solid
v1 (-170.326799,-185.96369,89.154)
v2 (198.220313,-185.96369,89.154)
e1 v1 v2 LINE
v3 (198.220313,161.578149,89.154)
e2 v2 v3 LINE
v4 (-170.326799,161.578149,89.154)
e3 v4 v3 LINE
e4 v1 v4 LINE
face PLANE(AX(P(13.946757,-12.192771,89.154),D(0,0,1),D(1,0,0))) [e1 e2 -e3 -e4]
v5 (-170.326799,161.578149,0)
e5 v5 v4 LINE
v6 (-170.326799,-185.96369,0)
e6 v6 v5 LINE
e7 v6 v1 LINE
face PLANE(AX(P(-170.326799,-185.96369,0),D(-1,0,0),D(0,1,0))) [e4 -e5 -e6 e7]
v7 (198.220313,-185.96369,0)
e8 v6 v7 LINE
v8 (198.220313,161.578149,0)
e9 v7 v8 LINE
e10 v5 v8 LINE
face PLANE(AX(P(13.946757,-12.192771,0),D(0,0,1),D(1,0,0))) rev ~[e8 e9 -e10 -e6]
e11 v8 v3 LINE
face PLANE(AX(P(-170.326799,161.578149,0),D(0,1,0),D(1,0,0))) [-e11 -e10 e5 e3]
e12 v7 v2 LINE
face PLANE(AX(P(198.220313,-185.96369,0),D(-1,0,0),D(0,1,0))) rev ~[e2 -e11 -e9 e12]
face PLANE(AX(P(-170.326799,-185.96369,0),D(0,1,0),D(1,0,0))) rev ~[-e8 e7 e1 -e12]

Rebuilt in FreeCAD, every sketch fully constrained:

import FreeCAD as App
import Part
import Sketcher
from FreeCAD import Vector
Q = App.Units.Quantity

doc = App.newDocument("Part")
body = doc.addObject("PartDesign::Body", "Body")

sketch1 = body.newObject("Sketcher::SketchObject", "Sketch")
sketch1.Placement = App.Placement(Vector(-23.828264, -62.397081, 0), App.Rotation(Vector(-0.934198808, 0.356752837, 0), Vector(0, 0, 1), Vector(0.356752837, 0.934198808, 0), "ZXY"))
sketch1.addGeometry([
    Part.LineSegment(Vector(-34, 40, 0), Vector(-34, 0, 0)),
    Part.LineSegment(Vector(-34, 0, 0), Vector(0, 0, 0)),
    Part.LineSegment(Vector(0, 0, 0), Vector(0, 40, 0)),
    Part.LineSegment(Vector(0, 40, 0), Vector(-34, 40, 0)),
], False)
sketch1.addConstraint([
    Sketcher.Constraint("Coincident", 0, 2, 1, 1),
    Sketcher.Constraint("Coincident", 1, 2, 2, 1),
    Sketcher.Constraint("Coincident", 2, 2, 3, 1),
    Sketcher.Constraint("Coincident", 3, 2, 0, 1),
    Sketcher.Constraint("Vertical", 0),
    Sketcher.Constraint("Horizontal", 1),
    Sketcher.Constraint("Vertical", 2),
    Sketcher.Constraint("Horizontal", 3),
    Sketcher.Constraint("Coincident", 1, 2, -1, 1),
    Sketcher.Constraint("DistanceY", 0, 2, 0, 1, Q("1.5735999 in")),
    Sketcher.Constraint("DistanceX", 1, 1, 1, 2, Q("34.492411 mm")),
])

sketch2 = body.newObject("Sketcher::SketchObject", "Sketch001")
sketch2.AttachmentSupport = (doc.getObject("XY_Plane"), [""])
sketch2.MapMode = "FlatFace"
sketch2.addGeometry([
    Part.LineSegment(Vector(-37, -57, 0), Vector(0, 40, 0)),
    Part.LineSegment(Vector(0, 40, 0), Vector(-42, 73, 0)),
    Part.LineSegment(Vector(-42, 73, 0), Vector(-42, 106, 0)),
], False)
sketch2.addConstraint([
    Sketcher.Constraint("Coincident", 0, 2, 1, 1),
    Sketcher.Constraint("Coincident", 1, 2, 2, 1),
    Sketcher.Constraint("Vertical", 2),
    Sketcher.Constraint("PointOnObject", 0, 2, -2),
    Sketcher.Constraint("DistanceY", 0, 1, 0, 2, Q("97.178601 mm")),
    Sketcher.Constraint("DistanceX", 1, 2, 0, 1, Q("4.9535 mm")),
    Sketcher.Constraint("DistanceY", 0, 2, 2, 2, Q("65.933801 mm")),
    Sketcher.Constraint("Distance", 0, Q("104.023469 mm")),
    Sketcher.Constraint("DistanceY", 2, 1, 2, 2, Q("32.873526 mm")),
    Sketcher.Constraint("DistanceY", -1, 1, 0, 2, Q("39.853819 mm")),
])
doc.recompute()

additivepipe = body.newObject("PartDesign::AdditivePipe", "AdditivePipe")
additivepipe.Profile = sketch1
additivepipe.Spine = (sketch2, ["Edge1", "Edge2", "Edge3"])
additivepipe.Transition = "Right corner"

sketch3 = body.newObject("Sketcher::SketchObject", "Sketch002")
sketch3.Placement = App.Placement(Vector(-15.468095, -40.505006, 29.463982), App.Rotation(Vector(0.955475648, -0.238617491, 0.173574134), Vector(0, 0.588247373, 0.808681043), Vector(-0.29506997, -0.772675043, 0.562056039), "ZXY"))
sketch3.addGeometry(Part.Circle(Vector(10, 13, 0), Vector(0, 0, 1), 9), False)
sketch3.addConstraint([
    Sketcher.Constraint("Diameter", 0, Q("18.335749 mm")),
    Sketcher.Constraint("DistanceX", -1, 1, 0, 3, Q("10.327354 mm")),
    Sketcher.Constraint("DistanceY", -1, 1, 0, 3, Q("12.546644 mm")),
])

sketch4 = body.newObject("Sketcher::SketchObject", "Sketch003")
sketch4.Placement = App.Placement(Vector(0, 7.305282, 10.042787), App.Rotation(Vector(0, -0.808681043, 0.588247372), Vector(1, 0, 0), Vector(0, 0.588247372, 0.808681043), "ZXY"))
sketch4.addGeometry(Part.LineSegment(Vector(9, 0, 0), Vector(78, -21, 0)), False)
sketch4.addConstraint([
    Sketcher.Constraint("PointOnObject", 0, 1, -1),
    Sketcher.Constraint("DistanceX", -1, 1, 0, 2, Q("77.902028 mm")),
    Sketcher.Constraint("DistanceX", 0, 1, 0, 2, Q("68.868452 mm")),
    Sketcher.Constraint("Distance", 0, Q("72.077663 mm")),
])
doc.recompute()

subtractivepipe = body.newObject("PartDesign::SubtractivePipe", "SubtractivePipe")
subtractivepipe.Profile = sketch3
subtractivepipe.Spine = (sketch4, ["Edge1"])

sketch5 = body.newObject("Sketcher::SketchObject", "Sketch004")
sketch5.AttachmentSupport = (doc.getObject("XY_Plane"), [""])
sketch5.MapMode = "FlatFace"
sketch5.addGeometry([
    Part.LineSegment(Vector(-170, 162, 0), Vector(-170, -186, 0)),
    Part.LineSegment(Vector(-170, -186, 0), Vector(198, -186, 0)),
    Part.LineSegment(Vector(198, -186, 0), Vector(198, 162, 0)),
    Part.LineSegment(Vector(198, 162, 0), Vector(-170, 162, 0)),
], False)
sketch5.addConstraint([
    Sketcher.Constraint("Coincident", 0, 2, 1, 1),
    Sketcher.Constraint("Coincident", 1, 2, 2, 1),
    Sketcher.Constraint("Coincident", 2, 2, 3, 1),
    Sketcher.Constraint("Coincident", 3, 2, 0, 1),
    Sketcher.Constraint("Vertical", 0),
    Sketcher.Constraint("Horizontal", 1),
    Sketcher.Constraint("Vertical", 2),
    Sketcher.Constraint("Horizontal", 3),
    Sketcher.Constraint("DistanceX", 1, 1, 1, 2, Q("368.547112 mm")),
    Sketcher.Constraint("DistanceY", 0, 2, 0, 1, Q("347.541839 mm")),
    Sketcher.Constraint("DistanceX", 0, 2, -1, 1, Q("170.326799 mm")),
    Sketcher.Constraint("DistanceY", 0, 2, -1, 1, Q("185.96369 mm")),
])
pad1 = body.newObject("PartDesign::Pad", "Pad")
pad1.Profile = sketch5
pad1.Length = Q("3.51 in")

doc.recompute()
